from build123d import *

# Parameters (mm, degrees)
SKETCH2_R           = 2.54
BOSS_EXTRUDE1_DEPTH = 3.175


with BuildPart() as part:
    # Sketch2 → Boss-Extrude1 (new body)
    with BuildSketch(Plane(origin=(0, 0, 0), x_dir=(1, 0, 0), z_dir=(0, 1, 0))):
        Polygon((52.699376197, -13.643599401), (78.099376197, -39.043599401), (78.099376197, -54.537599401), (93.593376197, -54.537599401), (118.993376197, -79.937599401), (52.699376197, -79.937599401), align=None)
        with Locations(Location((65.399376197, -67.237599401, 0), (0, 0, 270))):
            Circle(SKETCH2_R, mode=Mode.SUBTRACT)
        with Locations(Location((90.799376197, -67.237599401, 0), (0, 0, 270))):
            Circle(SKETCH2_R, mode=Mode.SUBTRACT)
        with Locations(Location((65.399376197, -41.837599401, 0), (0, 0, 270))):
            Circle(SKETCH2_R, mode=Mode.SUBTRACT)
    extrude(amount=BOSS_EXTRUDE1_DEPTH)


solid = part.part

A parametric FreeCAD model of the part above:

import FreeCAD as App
import Part
import Sketcher

V = App.Vector
Q = App.Units.Quantity

doc = App.newDocument("Part")
params = doc.addObject("Spreadsheet::Sheet", "Params")
for row, (alias, value) in enumerate([
    ("sketch1_diameter", "0.2 in"),
    ("sketch1_width", "2.61 in"),
    ("pad1_length", "0.125 in"),
], start=1):
    params.set(f"A{row}", alias)
    params.set(f"B{row}", "=" + value)
    params.setAlias(f"B{row}", alias)

body = doc.addObject("PartDesign::Body", "Body")

sketch1 = body.newObject("Sketcher::SketchObject", "Sketch")
sketch1.AttachmentSupport = (doc.getObject("XZ_Plane"), [""])
sketch1.MapMode = "FlatFace"
sketch1.addGeometry([
    Part.LineSegment(V(78.1, 39, 0), V(52.7, 13.6, 0)),
    Part.LineSegment(V(52.7, 13.6, 0), V(52.7, 79.9, 0)),
    Part.LineSegment(V(52.7, 79.9, 0), V(119, 79.9, 0)),
    Part.LineSegment(V(119, 79.9, 0), V(93.6, 54.5, 0)),
    Part.LineSegment(V(93.6, 54.5, 0), V(78.1, 54.5, 0)),
    Part.LineSegment(V(78.1, 54.5, 0), V(78.1, 39, 0)),
    Part.Circle(V(90.8, 67.2, 0), V(0, 0, 1), 2.5),
    Part.Circle(V(65.4, 67.2, 0), V(0, 0, 1), 2.5),
    Part.Circle(V(65.4, 41.8, 0), V(0, 0, 1), 2.5),
], False)
sketch1.addConstraint([
    Sketcher.Constraint("Coincident", 0, 2, 1, 1),
    Sketcher.Constraint("Coincident", 1, 2, 2, 1),
    Sketcher.Constraint("Coincident", 2, 2, 3, 1),
    Sketcher.Constraint("Coincident", 3, 2, 4, 1),
    Sketcher.Constraint("Coincident", 4, 2, 5, 1),
    Sketcher.Constraint("Coincident", 5, 2, 0, 1),
    Sketcher.Constraint("Vertical", 1),
    Sketcher.Constraint("Horizontal", 2),
    Sketcher.Constraint("Horizontal", 4),
    Sketcher.Constraint("Vertical", 5),
    Sketcher.Constraint("Equal", 6, 7),
    Sketcher.Constraint("Equal", 7, 8),
    Sketcher.Constraint("Parallel", 0, 3),
    Sketcher.Constraint("Horizontal", 6, 3, 7, 3),
    Sketcher.Constraint("Vertical", 7, 3, 8, 3),
    Sketcher.Constraint("Equal", 2, 1),
    Sketcher.Constraint("Equal", 4, 5),
    Sketcher.Constraint("Equal", 0, 3),
    Sketcher.Constraint("Diameter", 6, Q("0.2 in")),
    Sketcher.Constraint("DistanceX", 7, 3, 6, 3, Q("1 in")),
    Sketcher.Constraint("DistanceY", 8, 3, 7, 3, Q("1 in")),
    Sketcher.Constraint("DistanceX", 3, 2, 2, 2, Q("1 in")),
    Sketcher.Constraint("DistanceX", 2, 1, 2, 2, Q("2.61 in")),
    Sketcher.Constraint("DistanceX", 0, 2, 8, 3, Q("0.5 in")),
    Sketcher.Constraint("DistanceY", 7, 3, 1, 2, Q("0.5 in")),
    Sketcher.Constraint("DistanceY", -1, 1, 6, 3, Q("67.237599 mm")),
    Sketcher.Constraint("DistanceX", -1, 1, 6, 3, Q("90.799376 mm")),
])
sketch1.setExpression("Constraints[18]", "Params.sketch1_diameter")
sketch1.setExpression("Constraints[22]", "Params.sketch1_width")
pad1 = body.newObject("PartDesign::Pad", "Pad")
pad1.Profile = sketch1
pad1.setExpression("Length", "Params.pad1_length")
pad1.Reversed = True

doc.recompute()
